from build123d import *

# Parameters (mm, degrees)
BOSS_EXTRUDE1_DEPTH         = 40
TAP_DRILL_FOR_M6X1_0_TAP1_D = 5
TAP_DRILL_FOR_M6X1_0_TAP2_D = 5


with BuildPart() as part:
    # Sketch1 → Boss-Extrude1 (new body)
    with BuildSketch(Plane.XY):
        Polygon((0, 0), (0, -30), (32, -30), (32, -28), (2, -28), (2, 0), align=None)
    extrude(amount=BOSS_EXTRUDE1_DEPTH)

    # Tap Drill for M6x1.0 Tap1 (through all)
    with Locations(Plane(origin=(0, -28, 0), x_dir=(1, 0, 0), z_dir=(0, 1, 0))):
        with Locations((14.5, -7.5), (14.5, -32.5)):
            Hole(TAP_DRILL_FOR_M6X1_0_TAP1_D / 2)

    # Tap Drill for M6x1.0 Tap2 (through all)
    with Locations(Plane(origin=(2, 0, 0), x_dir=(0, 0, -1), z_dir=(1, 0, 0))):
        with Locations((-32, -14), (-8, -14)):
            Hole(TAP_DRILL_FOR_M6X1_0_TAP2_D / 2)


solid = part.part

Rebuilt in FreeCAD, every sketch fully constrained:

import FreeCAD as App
import Part
import Sketcher
Q = App.Units.Quantity


def add_polygon(sketch, points):
    """Adds a closed chain of lines whose ends are joined by coincident constraints."""
    first, n = sketch.GeometryCount, len(points)
    for a, b in zip(points, points[1:] + points[:1]):
        sketch.addGeometry(Part.LineSegment(App.Vector(*a, 0), App.Vector(*b, 0)), False)
    for i in range(n):
        sketch.addConstraint(Sketcher.Constraint("Coincident", first + i, 2, first + (i + 1) % n, 1))

doc = App.newDocument("Part")
body = doc.addObject("PartDesign::Body", "Body")

# Sketch on XY plane
sketch1 = doc.addObject("Sketcher::SketchObject", "Sketch")
body.addObject(sketch1)
sketch1.AttachmentSupport = (doc.XY_Plane, [""])
sketch1.MapMode = "FlatFace"
add_polygon(sketch1, [(0, 0), (0, -30), (32, -30), (32, -28), (2, -28), (2, 0)])  # lines 0-5
sketch1.addConstraint([
    Sketcher.Constraint("Vertical", 0),
    Sketcher.Constraint("Horizontal", 1),
    Sketcher.Constraint("Vertical", 2),
    Sketcher.Constraint("Horizontal", 3),
    Sketcher.Constraint("Vertical", 4),
    Sketcher.Constraint("Horizontal", 5),
    Sketcher.Constraint("Coincident", 5, 2, -1, 1),
    Sketcher.Constraint("Equal", 3, 0),
    Sketcher.Constraint("Equal", 5, 2),
    Sketcher.Constraint("DistanceX", 1, 1, 1, 2, Q("32 mm")),
    Sketcher.Constraint("DistanceX", 3, 2, 3, 1, Q("30 mm")),
])
pad1 = doc.addObject("PartDesign::Pad", "Pad")
body.addObject(pad1)
pad1.Profile = sketch1
pad1.Length = 40

# Sketch on XZ plane
sketch2 = doc.addObject("Sketcher::SketchObject", "Sketch001")
body.addObject(sketch2)
sketch2.AttachmentSupport = (doc.XZ_Plane, [""])
sketch2.MapMode = "FlatFace"
sketch2.AttachmentOffset = App.Placement(App.Vector(0, 0, 28), App.Rotation())
sketch2.addGeometry([
    Part.Circle(App.Vector(14.5, 7.5, 0), App.Vector(0, 0, 1), 2.5),
    Part.Circle(App.Vector(14.5, 32.5, 0), App.Vector(0, 0, 1), 2.5),
], False)
sketch2.addConstraint([
    Sketcher.Constraint("Equal", 0, 1),
    Sketcher.Constraint("Vertical", 0, 3, 1, 3),
    Sketcher.Constraint("Diameter", 0, Q("5 mm")),
    Sketcher.Constraint("DistanceY", 0, 3, 1, 3, Q("25 mm")),
    Sketcher.Constraint("DistanceX", -1, 1, 0, 3, Q("14.5 mm")),
    Sketcher.Constraint("DistanceY", -1, 1, 0, 3, Q("7.5 mm")),
])
doc.recompute()
hole = doc.addObject("PartDesign::Hole", "Hole")
body.addObject(hole)
hole.Profile = sketch2
hole.ThreadType = "None"
hole.Diameter = 5
hole.DepthType = "ThroughAll"
hole.Reversed = True

# Sketch on YZ plane
sketch3 = doc.addObject("Sketcher::SketchObject", "Sketch002")
body.addObject(sketch3)
sketch3.AttachmentSupport = (doc.YZ_Plane, [""])
sketch3.MapMode = "FlatFace"
sketch3.AttachmentOffset = App.Placement(App.Vector(0, 0, 2), App.Rotation())
sketch3.addGeometry([
    Part.Circle(App.Vector(-14, 32, 0), App.Vector(0, 0, 1), 2.5),
    Part.Circle(App.Vector(-14, 8, 0), App.Vector(0, 0, 1), 2.5),
], False)
sketch3.addConstraint([
    Sketcher.Constraint("Equal", 0, 1),
    Sketcher.Constraint("Vertical", 0, 3, 1, 3),
    Sketcher.Constraint("Diameter", 0, Q("5 mm")),
    Sketcher.Constraint("DistanceX", 0, 3, -1, 1, Q("14 mm")),
    Sketcher.Constraint("DistanceY", -1, 1, 0, 3, Q("32 mm")),
    Sketcher.Constraint("DistanceY", -1, 1, 1, 3, Q("8 mm")),
])
doc.recompute()
hole2 = doc.addObject("PartDesign::Hole", "Hole001")
body.addObject(hole2)
hole2.Profile = sketch3
hole2.ThreadType = "None"
hole2.Diameter = 5
hole2.DepthType = "ThroughAll"

doc.recompute()
